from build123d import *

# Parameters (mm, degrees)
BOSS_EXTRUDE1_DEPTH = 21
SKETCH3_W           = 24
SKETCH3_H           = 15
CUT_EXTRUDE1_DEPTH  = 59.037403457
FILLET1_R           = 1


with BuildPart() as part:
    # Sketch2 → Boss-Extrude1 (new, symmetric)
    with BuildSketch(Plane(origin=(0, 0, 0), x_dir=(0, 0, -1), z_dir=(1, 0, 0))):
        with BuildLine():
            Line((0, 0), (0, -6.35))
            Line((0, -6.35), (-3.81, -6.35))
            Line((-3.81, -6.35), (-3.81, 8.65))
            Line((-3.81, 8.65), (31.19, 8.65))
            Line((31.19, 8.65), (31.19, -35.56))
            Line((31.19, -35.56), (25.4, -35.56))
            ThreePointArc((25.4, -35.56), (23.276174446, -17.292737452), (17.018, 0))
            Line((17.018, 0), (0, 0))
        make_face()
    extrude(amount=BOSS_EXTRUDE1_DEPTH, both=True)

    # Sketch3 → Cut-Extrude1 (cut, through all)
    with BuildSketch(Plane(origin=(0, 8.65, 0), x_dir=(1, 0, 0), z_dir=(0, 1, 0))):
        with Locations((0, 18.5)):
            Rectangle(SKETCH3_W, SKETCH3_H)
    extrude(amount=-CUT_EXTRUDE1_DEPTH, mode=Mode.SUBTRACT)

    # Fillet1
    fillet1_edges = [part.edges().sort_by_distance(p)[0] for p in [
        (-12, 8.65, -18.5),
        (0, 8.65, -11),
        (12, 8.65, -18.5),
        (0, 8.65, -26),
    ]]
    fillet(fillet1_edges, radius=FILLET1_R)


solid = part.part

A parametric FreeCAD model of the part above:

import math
import FreeCAD as App
import Part
import Sketcher
from FreeCAD import Vector


def edges_at(feature, points):
    """Names of the edges that pass closest to the given points."""
    edges = feature.Shape.Edges
    near = lambda p: min(range(len(edges)), key=lambda i: edges[i].distToShape(Part.Vertex(*p))[0])
    return sorted({f"Edge{near(p) + 1}" for p in points})

doc = App.newDocument("Part")
body = doc.addObject("PartDesign::Body", "Body")

# Sketch on YZ plane
sketch1 = body.newObject("Sketcher::SketchObject", "Sketch")
sketch1.AttachmentSupport = (doc.getObject("YZ_Plane"), [""])
sketch1.MapMode = "FlatFace"
sketch1.addGeometry([
    Part.LineSegment(Vector(-6.3, 0, 0), Vector(0, 0, 0)),  # 0
    Part.LineSegment(Vector(0, 0, 0), Vector(0, -17, 0)),  # 1
    Part.ArcOfCircle(Part.Circle(Vector(-35.6, 54.2, 0), Vector(0, 0, 1), 79.6), math.radians(-90), math.radians(-63)),  # 2
    Part.LineSegment(Vector(-35.6, -25.4, 0), Vector(-35.6, -31.2, 0)),  # 3
    Part.LineSegment(Vector(-35.6, -31.2, 0), Vector(8.7, -31.2, 0)),  # 4
    Part.LineSegment(Vector(8.7, -31.2, 0), Vector(8.7, 3.8, 0)),  # 5
    Part.LineSegment(Vector(8.7, 3.8, 0), Vector(-6.3, 3.8, 0)),  # 6
    Part.LineSegment(Vector(-6.3, 3.8, 0), Vector(-6.3, 0, 0)),  # 7
], False)
sketch1.addConstraint([
    Sketcher.Constraint("Coincident", 0, 2, 1, 1),
    Sketcher.Constraint("Coincident", 1, 2, 2, 2),
    Sketcher.Constraint("Coincident", 2, 1, 3, 1),
    Sketcher.Constraint("Coincident", 3, 2, 4, 1),
    Sketcher.Constraint("Coincident", 4, 2, 5, 1),
    Sketcher.Constraint("Coincident", 5, 2, 6, 1),
    Sketcher.Constraint("Coincident", 6, 2, 7, 1),
    Sketcher.Constraint("Coincident", 7, 2, 0, 1),
    Sketcher.Constraint("Horizontal", 0),
    Sketcher.Constraint("Vertical", 1),
    Sketcher.Constraint("Vertical", 3),
    Sketcher.Constraint("Horizontal", 4),
    Sketcher.Constraint("Vertical", 5),
    Sketcher.Constraint("Horizontal", 6),
    Sketcher.Constraint("Vertical", 7),
    Sketcher.Constraint("Coincident", 0, 2, -1, 1),
    Sketcher.Constraint("DistanceX", 6, 2, 6, 1, 15.0),
    Sketcher.Constraint("DistanceY", 5, 1, 5, 2, 35.0),
    Sketcher.Constraint("DistanceX", 0, 1, 0, 2, 6.35),
    Sketcher.Constraint("DistanceX", 4, 1, 4, 2, 44.21),
    Sketcher.Constraint("DistanceY", 3, 2, 3, 1, 5.79),
    Sketcher.Constraint("DistanceY", 7, 2, 7, 1, 3.81),
    Sketcher.Constraint("DistanceY", 1, 2, 1, 1, 17.018),
    Sketcher.Constraint("DistanceX", 2, 3, -1, 1, 35.56),
])
pad1 = body.newObject("PartDesign::Pad", "Pad")
pad1.Profile = sketch1
pad1.Length = 42
pad1.Midplane = True

# Sketch on XZ plane
sketch2 = body.newObject("Sketcher::SketchObject", "Sketch001")
sketch2.AttachmentSupport = (doc.getObject("XZ_Plane"), [""])
sketch2.MapMode = "FlatFace"
sketch2.AttachmentOffset = App.Placement(Vector(0, 0, -8.65), App.Rotation())
sketch2.addGeometry([
    Part.LineSegment(Vector(-12, -26, 0), Vector(-12, -11, 0)),
    Part.LineSegment(Vector(-12, -11, 0), Vector(12, -11, 0)),
    Part.LineSegment(Vector(12, -11, 0), Vector(12, -26, 0)),
    Part.LineSegment(Vector(12, -26, 0), Vector(-12, -26, 0)),
], False)
sketch2.addConstraint([
    Sketcher.Constraint("Coincident", 0, 2, 1, 1),
    Sketcher.Constraint("Coincident", 1, 2, 2, 1),
    Sketcher.Constraint("Coincident", 2, 2, 3, 1),
    Sketcher.Constraint("Coincident", 3, 2, 0, 1),
    Sketcher.Constraint("Vertical", 0),
    Sketcher.Constraint("Horizontal", 1),
    Sketcher.Constraint("Vertical", 2),
    Sketcher.Constraint("Horizontal", 3),
    Sketcher.Constraint("DistanceX", 1, 1, 1, 2, 24.0),
    Sketcher.Constraint("DistanceY", 0, 1, 0, 2, 15.0),
    Sketcher.Constraint("DistanceX", 0, 2, -1, 1, 12.0),
    Sketcher.Constraint("DistanceY", 0, 2, -1, 1, 11.0),
])
pocket1 = body.newObject("PartDesign::Pocket", "Pocket")
pocket1.Profile = sketch2
pocket1.Type = "ThroughAll"
pocket1.Reversed = True
doc.recompute()

fillet = body.newObject("PartDesign::Fillet", "Fillet")
fillet.Base = (pocket1, edges_at(pocket1, [
    (-12, 8.65, -18.5),
    (0, 8.65, -11),
    (12, 8.65, -18.5),
    (0, 8.65, -26),
]))
fillet.Radius = 1

doc.recompute()
